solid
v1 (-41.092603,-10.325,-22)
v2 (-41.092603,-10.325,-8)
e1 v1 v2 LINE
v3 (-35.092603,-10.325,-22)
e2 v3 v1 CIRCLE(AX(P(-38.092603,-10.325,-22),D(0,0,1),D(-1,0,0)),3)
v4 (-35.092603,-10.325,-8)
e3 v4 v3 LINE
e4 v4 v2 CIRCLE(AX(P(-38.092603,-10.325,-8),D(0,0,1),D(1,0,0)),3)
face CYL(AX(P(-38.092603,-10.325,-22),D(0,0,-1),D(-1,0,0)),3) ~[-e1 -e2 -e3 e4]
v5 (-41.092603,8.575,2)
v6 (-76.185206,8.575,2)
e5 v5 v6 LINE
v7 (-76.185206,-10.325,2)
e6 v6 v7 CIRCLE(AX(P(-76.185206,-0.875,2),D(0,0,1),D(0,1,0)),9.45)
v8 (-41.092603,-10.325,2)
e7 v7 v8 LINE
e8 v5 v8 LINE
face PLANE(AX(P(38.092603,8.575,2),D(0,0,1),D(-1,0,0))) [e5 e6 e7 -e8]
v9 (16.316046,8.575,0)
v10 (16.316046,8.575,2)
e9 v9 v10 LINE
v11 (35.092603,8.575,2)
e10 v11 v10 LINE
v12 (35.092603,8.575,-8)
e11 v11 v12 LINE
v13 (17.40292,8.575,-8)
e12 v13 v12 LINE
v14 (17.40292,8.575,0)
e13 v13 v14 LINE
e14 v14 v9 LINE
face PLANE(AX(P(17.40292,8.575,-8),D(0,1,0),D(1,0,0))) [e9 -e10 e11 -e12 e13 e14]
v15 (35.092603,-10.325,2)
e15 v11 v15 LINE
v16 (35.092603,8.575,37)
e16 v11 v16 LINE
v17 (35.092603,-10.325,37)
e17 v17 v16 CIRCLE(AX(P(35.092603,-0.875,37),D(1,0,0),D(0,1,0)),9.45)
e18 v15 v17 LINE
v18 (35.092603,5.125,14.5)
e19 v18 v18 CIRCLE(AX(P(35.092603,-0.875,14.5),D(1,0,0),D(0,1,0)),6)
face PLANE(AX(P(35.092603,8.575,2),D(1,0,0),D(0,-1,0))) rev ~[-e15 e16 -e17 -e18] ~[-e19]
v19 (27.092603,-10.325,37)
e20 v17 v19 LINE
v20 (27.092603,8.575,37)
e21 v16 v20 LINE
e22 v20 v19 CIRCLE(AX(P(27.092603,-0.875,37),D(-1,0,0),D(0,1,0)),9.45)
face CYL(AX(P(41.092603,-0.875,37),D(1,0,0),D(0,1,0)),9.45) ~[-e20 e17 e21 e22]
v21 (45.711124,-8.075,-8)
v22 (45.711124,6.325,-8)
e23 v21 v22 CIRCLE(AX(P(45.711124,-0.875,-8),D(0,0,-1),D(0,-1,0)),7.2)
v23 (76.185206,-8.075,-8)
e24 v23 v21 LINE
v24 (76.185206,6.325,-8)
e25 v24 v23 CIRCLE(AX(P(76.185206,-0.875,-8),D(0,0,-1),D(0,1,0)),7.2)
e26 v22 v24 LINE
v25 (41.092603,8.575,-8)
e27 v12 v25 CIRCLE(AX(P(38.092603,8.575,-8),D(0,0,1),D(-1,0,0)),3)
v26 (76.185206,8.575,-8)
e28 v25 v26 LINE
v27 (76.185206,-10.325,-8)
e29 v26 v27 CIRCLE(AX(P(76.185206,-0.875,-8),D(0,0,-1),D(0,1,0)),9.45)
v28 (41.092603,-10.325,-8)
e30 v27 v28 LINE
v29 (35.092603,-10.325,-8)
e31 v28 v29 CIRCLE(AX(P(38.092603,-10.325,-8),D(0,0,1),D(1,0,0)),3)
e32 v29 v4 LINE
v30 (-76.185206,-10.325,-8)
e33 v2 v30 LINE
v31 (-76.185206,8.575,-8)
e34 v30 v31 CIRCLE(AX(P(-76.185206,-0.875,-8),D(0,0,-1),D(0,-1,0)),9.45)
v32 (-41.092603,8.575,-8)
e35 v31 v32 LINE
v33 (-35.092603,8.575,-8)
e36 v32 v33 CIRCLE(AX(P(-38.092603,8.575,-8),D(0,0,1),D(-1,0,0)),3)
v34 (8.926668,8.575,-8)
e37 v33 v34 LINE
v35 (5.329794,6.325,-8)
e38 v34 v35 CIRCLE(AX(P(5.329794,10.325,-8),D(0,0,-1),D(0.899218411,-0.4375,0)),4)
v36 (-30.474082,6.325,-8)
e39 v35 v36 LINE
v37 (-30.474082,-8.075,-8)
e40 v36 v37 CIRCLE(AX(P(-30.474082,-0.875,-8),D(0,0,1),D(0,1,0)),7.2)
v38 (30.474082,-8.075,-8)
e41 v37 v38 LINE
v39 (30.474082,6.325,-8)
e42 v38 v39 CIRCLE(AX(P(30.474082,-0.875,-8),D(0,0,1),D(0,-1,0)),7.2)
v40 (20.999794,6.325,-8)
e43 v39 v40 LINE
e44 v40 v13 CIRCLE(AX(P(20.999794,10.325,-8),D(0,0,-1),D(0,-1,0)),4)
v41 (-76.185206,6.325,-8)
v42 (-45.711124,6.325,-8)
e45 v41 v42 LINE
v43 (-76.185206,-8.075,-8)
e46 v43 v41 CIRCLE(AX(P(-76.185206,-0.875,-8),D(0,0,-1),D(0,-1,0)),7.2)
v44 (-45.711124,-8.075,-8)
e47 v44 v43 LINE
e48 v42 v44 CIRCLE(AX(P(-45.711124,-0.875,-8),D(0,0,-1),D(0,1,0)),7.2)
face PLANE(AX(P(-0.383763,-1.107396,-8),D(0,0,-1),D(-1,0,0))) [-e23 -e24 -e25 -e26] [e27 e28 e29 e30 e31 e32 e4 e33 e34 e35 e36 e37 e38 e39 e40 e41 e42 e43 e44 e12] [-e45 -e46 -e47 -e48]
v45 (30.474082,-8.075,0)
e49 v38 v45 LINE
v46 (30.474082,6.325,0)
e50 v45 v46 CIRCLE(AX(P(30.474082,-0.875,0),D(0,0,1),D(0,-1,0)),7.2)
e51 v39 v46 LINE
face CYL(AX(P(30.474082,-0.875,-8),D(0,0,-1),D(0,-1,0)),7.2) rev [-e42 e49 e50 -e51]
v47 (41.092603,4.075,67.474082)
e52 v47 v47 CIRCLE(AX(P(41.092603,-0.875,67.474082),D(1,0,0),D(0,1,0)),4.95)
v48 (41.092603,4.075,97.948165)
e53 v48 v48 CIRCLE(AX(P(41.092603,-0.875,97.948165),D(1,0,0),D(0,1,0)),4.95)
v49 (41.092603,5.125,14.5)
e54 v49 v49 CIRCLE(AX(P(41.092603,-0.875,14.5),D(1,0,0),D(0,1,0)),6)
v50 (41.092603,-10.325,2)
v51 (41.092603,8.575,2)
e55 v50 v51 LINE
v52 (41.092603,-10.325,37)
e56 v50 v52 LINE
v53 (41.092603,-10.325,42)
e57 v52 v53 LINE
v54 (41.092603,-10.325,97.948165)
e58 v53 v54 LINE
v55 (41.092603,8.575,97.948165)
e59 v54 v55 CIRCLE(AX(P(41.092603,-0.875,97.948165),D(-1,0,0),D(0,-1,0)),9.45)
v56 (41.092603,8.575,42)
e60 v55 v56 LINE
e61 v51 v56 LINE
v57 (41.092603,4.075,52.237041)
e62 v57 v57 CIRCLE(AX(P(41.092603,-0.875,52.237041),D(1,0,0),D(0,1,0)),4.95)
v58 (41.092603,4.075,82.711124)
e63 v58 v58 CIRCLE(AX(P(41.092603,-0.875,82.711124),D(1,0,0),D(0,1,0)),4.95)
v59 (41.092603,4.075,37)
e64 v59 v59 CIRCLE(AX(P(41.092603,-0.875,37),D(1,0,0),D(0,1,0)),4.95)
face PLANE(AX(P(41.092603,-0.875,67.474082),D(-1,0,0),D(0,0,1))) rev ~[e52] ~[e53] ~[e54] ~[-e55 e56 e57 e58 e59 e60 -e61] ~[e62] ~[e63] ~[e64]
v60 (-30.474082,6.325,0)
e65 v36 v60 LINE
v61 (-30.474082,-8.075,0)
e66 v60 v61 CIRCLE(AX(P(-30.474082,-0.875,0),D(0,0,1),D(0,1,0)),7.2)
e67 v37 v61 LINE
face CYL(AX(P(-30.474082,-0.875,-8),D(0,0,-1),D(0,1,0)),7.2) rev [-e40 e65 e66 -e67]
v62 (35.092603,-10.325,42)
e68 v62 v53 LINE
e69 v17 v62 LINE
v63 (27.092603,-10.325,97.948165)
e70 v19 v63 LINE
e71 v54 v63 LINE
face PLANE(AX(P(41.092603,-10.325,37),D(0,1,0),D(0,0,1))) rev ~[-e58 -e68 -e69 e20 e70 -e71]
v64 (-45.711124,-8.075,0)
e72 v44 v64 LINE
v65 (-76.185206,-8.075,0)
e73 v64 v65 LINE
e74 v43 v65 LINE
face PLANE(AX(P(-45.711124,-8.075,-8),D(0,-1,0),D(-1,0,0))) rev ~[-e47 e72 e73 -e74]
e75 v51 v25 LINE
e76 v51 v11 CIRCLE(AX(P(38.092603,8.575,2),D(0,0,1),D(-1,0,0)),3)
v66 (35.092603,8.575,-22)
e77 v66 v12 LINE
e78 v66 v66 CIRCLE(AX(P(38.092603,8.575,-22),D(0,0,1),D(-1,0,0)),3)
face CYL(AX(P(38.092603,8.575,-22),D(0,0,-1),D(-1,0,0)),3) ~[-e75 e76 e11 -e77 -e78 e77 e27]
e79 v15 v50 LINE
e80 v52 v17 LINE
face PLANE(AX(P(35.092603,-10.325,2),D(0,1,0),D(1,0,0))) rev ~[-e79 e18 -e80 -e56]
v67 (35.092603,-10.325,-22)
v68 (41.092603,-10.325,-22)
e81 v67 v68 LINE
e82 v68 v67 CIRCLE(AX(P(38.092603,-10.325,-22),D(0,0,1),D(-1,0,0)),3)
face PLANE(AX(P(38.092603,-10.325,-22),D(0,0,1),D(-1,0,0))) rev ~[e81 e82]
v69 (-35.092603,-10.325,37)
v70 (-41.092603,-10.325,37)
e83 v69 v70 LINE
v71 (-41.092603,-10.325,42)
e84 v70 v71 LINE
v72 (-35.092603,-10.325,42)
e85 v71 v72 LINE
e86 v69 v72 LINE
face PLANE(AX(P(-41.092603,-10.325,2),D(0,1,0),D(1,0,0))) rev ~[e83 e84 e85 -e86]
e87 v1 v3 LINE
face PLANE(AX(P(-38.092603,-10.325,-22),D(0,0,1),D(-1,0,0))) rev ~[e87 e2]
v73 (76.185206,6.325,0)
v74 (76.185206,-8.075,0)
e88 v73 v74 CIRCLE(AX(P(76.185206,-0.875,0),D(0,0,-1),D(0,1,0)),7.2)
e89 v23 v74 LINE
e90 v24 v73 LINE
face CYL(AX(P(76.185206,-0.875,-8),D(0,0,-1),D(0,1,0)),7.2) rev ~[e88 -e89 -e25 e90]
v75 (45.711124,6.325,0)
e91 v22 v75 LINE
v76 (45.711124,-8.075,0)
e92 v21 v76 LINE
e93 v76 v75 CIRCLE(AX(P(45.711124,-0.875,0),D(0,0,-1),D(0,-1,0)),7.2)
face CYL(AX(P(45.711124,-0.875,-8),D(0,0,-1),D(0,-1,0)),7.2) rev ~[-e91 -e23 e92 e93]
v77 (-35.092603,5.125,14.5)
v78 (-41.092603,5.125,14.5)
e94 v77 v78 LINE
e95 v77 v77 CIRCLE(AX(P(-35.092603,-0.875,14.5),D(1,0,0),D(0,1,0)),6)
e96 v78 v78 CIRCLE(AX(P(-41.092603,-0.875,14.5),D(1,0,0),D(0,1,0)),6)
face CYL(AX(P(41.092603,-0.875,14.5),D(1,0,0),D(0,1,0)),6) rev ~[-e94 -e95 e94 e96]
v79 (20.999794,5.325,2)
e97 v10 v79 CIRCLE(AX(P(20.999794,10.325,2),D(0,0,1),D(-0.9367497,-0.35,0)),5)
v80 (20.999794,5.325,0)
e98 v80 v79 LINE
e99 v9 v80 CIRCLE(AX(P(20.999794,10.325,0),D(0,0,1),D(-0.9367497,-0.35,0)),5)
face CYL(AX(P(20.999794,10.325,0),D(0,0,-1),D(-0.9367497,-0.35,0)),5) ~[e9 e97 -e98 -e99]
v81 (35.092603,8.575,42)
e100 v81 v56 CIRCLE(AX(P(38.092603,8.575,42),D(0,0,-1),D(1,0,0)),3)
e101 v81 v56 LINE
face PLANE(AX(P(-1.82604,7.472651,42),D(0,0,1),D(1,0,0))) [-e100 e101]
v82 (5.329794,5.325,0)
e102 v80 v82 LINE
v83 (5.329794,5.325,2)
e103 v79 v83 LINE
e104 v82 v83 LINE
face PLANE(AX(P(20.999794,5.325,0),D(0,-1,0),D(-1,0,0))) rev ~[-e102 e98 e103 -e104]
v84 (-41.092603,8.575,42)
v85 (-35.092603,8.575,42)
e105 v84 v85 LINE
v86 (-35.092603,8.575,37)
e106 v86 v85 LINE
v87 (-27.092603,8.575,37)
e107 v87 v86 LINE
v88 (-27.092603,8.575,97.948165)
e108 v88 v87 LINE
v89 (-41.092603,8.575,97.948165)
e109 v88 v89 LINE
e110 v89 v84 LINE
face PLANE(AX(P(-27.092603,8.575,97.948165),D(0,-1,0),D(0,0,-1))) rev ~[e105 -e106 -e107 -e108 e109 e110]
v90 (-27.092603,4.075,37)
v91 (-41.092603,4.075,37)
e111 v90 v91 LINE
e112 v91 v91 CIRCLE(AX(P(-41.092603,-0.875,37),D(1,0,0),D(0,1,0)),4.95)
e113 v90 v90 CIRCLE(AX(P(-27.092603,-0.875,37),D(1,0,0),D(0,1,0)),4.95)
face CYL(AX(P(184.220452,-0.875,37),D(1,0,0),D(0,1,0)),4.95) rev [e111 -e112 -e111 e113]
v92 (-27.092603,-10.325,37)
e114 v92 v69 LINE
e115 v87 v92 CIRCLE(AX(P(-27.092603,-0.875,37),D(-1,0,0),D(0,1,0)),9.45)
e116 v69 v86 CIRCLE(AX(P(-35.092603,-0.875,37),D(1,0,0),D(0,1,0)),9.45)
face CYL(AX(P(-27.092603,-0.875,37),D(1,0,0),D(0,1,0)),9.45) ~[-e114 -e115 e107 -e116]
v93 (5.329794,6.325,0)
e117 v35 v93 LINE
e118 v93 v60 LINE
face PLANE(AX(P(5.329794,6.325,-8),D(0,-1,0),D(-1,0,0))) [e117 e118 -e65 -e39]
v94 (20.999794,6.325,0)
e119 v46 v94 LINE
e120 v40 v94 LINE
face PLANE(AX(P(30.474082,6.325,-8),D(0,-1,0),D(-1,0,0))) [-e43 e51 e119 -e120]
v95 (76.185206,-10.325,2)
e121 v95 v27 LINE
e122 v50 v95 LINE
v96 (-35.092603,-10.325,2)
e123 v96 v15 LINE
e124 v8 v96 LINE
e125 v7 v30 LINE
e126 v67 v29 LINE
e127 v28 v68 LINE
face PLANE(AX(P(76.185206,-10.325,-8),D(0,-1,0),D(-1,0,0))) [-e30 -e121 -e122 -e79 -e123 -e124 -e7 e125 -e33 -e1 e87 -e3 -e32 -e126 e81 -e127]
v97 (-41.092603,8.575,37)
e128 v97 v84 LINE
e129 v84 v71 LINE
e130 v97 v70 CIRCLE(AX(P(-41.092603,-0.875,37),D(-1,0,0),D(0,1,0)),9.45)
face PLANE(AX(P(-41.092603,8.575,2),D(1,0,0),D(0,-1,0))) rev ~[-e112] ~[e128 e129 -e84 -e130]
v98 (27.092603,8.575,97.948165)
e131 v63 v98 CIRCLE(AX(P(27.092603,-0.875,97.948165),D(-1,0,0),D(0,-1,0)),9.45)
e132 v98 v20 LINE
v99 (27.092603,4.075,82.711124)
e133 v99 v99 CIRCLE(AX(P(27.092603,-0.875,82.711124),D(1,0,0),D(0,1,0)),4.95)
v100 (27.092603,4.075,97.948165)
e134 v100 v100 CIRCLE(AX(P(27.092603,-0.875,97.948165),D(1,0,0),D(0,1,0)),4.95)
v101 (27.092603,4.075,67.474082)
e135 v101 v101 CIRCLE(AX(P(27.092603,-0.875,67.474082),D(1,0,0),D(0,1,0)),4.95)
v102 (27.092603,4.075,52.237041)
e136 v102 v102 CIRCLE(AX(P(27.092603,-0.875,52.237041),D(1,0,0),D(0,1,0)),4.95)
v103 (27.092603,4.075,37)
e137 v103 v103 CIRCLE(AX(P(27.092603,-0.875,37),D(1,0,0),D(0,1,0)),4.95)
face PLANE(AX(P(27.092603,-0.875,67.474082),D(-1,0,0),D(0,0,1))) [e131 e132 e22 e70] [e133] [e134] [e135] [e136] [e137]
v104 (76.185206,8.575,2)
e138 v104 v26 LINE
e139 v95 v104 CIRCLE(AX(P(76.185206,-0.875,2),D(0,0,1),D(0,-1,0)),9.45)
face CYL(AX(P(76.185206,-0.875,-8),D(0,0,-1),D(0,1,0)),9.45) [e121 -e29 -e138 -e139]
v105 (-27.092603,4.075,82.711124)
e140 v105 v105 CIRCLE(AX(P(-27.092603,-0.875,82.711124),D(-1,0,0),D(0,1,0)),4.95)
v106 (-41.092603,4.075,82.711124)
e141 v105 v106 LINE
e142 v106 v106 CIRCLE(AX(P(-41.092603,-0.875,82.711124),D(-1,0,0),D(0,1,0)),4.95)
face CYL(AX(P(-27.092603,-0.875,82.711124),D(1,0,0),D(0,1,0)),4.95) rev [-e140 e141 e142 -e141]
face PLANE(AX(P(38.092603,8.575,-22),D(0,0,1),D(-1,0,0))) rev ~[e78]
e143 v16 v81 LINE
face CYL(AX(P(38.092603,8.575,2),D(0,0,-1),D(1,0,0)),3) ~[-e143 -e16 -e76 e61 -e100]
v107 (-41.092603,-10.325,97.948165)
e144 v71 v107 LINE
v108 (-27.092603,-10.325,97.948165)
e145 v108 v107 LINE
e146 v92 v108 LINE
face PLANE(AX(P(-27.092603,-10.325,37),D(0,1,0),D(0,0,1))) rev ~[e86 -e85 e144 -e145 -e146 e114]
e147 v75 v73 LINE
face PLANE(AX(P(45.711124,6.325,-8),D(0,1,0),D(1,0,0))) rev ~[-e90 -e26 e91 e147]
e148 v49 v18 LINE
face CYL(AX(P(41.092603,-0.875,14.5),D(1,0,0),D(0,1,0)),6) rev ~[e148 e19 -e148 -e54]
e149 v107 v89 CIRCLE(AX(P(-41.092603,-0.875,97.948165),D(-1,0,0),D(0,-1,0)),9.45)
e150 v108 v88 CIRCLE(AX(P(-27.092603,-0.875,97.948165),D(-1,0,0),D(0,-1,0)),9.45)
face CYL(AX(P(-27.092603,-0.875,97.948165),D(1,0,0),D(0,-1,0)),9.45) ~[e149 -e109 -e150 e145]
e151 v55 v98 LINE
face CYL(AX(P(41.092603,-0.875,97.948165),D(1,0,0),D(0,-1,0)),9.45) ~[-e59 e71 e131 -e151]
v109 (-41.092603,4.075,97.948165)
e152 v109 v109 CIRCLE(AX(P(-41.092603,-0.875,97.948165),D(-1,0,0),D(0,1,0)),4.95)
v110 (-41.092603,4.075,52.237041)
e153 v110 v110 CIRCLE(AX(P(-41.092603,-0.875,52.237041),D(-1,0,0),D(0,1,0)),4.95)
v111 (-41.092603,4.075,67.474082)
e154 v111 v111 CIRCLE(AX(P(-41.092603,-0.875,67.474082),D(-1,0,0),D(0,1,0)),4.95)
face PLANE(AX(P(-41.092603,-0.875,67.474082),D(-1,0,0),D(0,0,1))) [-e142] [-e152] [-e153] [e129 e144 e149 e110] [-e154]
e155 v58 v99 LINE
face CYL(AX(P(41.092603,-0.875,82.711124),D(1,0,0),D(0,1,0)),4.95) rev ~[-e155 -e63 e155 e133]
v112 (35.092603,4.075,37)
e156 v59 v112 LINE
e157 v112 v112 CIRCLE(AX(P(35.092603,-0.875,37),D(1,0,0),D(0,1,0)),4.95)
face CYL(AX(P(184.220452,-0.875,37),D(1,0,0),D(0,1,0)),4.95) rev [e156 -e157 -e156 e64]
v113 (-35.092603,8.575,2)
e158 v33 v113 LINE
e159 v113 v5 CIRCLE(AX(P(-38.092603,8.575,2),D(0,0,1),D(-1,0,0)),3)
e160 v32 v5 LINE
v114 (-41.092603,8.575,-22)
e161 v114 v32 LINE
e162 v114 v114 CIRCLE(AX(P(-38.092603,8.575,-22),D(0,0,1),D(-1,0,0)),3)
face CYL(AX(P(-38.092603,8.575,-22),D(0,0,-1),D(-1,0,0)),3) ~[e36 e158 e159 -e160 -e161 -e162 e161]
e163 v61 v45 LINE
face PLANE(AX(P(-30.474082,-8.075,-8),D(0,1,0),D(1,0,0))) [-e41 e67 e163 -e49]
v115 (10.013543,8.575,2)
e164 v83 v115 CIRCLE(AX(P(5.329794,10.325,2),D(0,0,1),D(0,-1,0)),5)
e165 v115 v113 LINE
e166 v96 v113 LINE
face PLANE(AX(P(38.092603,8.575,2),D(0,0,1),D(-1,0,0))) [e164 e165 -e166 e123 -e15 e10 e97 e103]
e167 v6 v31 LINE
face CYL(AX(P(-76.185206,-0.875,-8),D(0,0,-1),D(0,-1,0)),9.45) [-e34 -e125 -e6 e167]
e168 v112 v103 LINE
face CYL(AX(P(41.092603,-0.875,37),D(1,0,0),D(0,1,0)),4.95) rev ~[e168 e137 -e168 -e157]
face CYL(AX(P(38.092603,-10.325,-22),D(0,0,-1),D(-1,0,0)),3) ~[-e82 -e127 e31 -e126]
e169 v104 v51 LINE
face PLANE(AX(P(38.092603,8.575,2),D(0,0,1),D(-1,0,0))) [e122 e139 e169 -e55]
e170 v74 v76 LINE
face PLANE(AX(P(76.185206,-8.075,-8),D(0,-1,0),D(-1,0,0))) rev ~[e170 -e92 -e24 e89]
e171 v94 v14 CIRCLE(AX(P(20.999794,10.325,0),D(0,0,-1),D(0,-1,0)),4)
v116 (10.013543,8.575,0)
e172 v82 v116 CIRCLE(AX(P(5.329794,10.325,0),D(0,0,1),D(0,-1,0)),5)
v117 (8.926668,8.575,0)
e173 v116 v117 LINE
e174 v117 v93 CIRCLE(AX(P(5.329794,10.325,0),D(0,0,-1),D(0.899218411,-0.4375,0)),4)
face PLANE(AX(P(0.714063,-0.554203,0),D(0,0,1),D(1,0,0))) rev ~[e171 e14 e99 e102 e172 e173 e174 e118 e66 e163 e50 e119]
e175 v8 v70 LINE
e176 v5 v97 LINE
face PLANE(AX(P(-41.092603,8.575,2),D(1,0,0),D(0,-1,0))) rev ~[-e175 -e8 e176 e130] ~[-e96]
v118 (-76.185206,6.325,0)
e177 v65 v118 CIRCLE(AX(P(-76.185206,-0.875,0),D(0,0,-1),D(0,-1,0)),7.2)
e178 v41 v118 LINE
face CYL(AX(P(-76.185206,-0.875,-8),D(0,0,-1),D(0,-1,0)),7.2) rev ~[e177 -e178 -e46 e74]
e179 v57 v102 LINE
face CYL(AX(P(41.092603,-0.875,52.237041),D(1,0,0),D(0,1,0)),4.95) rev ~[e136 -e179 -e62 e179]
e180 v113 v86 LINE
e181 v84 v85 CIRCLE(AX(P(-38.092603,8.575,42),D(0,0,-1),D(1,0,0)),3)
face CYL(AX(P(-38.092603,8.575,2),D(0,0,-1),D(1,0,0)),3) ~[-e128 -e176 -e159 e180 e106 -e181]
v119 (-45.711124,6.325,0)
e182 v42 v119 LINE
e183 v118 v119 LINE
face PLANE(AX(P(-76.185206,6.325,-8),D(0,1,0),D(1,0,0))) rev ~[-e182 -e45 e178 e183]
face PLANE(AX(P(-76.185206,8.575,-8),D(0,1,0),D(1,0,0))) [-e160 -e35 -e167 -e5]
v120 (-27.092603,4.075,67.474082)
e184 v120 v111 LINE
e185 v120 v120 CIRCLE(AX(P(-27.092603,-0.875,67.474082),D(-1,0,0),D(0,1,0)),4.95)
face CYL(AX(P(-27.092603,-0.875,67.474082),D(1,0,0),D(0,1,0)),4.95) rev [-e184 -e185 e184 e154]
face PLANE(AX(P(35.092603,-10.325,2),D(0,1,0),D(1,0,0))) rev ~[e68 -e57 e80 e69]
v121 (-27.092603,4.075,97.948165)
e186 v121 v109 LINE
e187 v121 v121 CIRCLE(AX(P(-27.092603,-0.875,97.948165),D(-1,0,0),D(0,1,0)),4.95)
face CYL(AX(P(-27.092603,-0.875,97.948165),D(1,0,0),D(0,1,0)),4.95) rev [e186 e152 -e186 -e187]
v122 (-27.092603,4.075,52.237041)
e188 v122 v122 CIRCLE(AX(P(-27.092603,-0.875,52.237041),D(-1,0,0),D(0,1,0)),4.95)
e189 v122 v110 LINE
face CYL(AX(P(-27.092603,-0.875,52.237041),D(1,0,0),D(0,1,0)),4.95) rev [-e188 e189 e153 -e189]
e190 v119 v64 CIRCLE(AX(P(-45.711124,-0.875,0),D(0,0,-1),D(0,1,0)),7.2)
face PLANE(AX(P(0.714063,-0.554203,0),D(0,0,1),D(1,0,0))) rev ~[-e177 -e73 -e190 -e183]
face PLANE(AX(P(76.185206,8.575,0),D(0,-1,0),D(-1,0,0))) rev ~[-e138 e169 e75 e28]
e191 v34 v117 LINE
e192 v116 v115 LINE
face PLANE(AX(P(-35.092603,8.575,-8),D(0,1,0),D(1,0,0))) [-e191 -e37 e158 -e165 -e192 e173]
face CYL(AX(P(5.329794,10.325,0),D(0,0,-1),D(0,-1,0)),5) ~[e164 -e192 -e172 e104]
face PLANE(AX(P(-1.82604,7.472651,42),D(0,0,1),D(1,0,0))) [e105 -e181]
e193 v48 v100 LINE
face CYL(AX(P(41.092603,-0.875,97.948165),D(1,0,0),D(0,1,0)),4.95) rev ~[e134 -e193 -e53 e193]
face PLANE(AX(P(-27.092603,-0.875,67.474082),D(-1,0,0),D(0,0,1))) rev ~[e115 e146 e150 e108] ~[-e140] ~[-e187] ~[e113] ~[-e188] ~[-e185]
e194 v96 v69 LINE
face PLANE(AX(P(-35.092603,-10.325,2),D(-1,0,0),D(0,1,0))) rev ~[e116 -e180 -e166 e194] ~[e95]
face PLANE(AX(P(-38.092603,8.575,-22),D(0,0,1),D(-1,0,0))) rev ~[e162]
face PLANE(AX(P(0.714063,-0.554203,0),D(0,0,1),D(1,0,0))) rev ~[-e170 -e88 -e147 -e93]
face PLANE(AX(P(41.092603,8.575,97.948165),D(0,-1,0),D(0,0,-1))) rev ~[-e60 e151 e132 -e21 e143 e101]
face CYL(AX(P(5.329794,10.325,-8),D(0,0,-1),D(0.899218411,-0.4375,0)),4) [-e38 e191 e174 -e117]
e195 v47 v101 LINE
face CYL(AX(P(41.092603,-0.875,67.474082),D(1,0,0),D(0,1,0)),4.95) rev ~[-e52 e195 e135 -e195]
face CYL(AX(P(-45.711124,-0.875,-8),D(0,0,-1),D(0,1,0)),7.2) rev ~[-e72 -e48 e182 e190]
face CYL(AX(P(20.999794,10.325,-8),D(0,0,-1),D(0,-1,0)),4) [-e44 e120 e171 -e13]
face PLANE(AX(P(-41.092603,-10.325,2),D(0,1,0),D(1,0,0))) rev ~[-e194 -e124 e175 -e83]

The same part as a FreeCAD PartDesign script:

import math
import FreeCAD as App
import Part
import Sketcher

V = App.Vector

doc = App.newDocument("Part")
body = doc.addObject("PartDesign::Body", "Body")

# Sketch on XY plane
sketch1 = body.newObject("Sketcher::SketchObject", "Sketch")
sketch1.AttachmentSupport = (doc.getObject("XY_Plane"), [""])
sketch1.MapMode = "FlatFace"
sketch1.addGeometry(Part.LineSegment(V(21, 5.3, 0), V(5.3, 5.3, 0)), False)
sketch1.addGeometry(Part.ArcOfCircle(Part.Circle(V(5.3, 10.3, 0), V(0, 0, 1), 5), math.radians(-90), math.radians(-20)), False)
sketch1.addGeometry(Part.LineSegment(V(10, 8.6, 0), V(-35.1, 8.6, 0)), False)
sketch1.addGeometry(Part.ArcOfCircle(Part.Circle(V(-38.1, 8.6, 0), V(0, 0, 1), 3), math.radians(180), math.radians(360)), False)
sketch1.addGeometry(Part.LineSegment(V(-41.1, 8.6, 0), V(-76.2, 8.6, 0)), False)
sketch1.addGeometry(Part.ArcOfCircle(Part.Circle(V(-76.2, -0.9, 0), V(0, 0, 1), 9.4), math.radians(90), math.radians(270)), False)
sketch1.addGeometry(Part.LineSegment(V(-76.2, -10.3, 0), V(-41.1, -10.3, 0)), False)
sketch1.addGeometry(Part.ArcOfCircle(Part.Circle(V(-38.1, -10.3, 0), V(0, 0, 1), 3), math.radians(0), math.radians(180)), False)
sketch1.addGeometry(Part.LineSegment(V(-35.1, -10.3, 0), V(35.1, -10.3, 0)), False)
sketch1.addGeometry(Part.ArcOfCircle(Part.Circle(V(38.1, -10.3, 0), V(0, 0, 1), 3), math.radians(0), math.radians(180)), False)
sketch1.addGeometry(Part.LineSegment(V(41.1, -10.3, 0), V(76.2, -10.3, 0)), False)
sketch1.addGeometry(Part.ArcOfCircle(Part.Circle(V(76.2, -0.9, 0), V(0, 0, 1), 9.4), math.radians(-90), math.radians(90)), False)
sketch1.addGeometry(Part.LineSegment(V(76.2, 8.6, 0), V(41.1, 8.6, 0)), False)
sketch1.addGeometry(Part.ArcOfCircle(Part.Circle(V(38.1, 8.6, 0), V(0, 0, 1), 3), math.radians(180), math.radians(360)), False)
sketch1.addGeometry(Part.LineSegment(V(35.1, 8.6, 0), V(16.3, 8.6, 0)), False)
sketch1.addGeometry(Part.ArcOfCircle(Part.Circle(V(21, 10.3, 0), V(0, 0, 1), 5), math.radians(-160), math.radians(-90)), False)
sketch1.addConstraint(Sketcher.Constraint("Tangent", 0, 2, 1, 1))
sketch1.addConstraint(Sketcher.Constraint("Coincident", 1, 2, 2, 1))
sketch1.addConstraint(Sketcher.Constraint("Coincident", 2, 2, 3, 2))
sketch1.addConstraint(Sketcher.Constraint("Coincident", 3, 1, 4, 1))
sketch1.addConstraint(Sketcher.Constraint("Tangent", 4, 2, 5, 1))
sketch1.addConstraint(Sketcher.Constraint("Tangent", 5, 2, 6, 1))
sketch1.addConstraint(Sketcher.Constraint("Coincident", 6, 2, 7, 2))
sketch1.addConstraint(Sketcher.Constraint("Coincident", 7, 1, 8, 1))
sketch1.addConstraint(Sketcher.Constraint("Coincident", 8, 2, 9, 2))
sketch1.addConstraint(Sketcher.Constraint("Coincident", 9, 1, 10, 1))
sketch1.addConstraint(Sketcher.Constraint("Tangent", 10, 2, 11, 1))
sketch1.addConstraint(Sketcher.Constraint("Tangent", 11, 2, 12, 1))
sketch1.addConstraint(Sketcher.Constraint("Coincident", 12, 2, 13, 2))
sketch1.addConstraint(Sketcher.Constraint("Coincident", 13, 1, 14, 1))
sketch1.addConstraint(Sketcher.Constraint("Coincident", 14, 2, 15, 1))
sketch1.addConstraint(Sketcher.Constraint("Tangent", 15, 2, 0, 1))
sketch1.addConstraint(Sketcher.Constraint("Horizontal", 0))
sketch1.addConstraint(Sketcher.Constraint("Horizontal", 2))
sketch1.addConstraint(Sketcher.Constraint("Horizontal", 4))
sketch1.addConstraint(Sketcher.Constraint("Horizontal", 6))
sketch1.addConstraint(Sketcher.Constraint("Horizontal", 8))
sketch1.addConstraint(Sketcher.Constraint("Horizontal", 10))
sketch1.addConstraint(Sketcher.Constraint("Horizontal", 12))
sketch1.addConstraint(Sketcher.Constraint("Horizontal", 14))
sketch1.addConstraint(Sketcher.Constraint("Equal", 3, 7))
sketch1.addConstraint(Sketcher.Constraint("Equal", 7, 9))
sketch1.addConstraint(Sketcher.Constraint("Equal", 5, 11))
sketch1.addConstraint(Sketcher.Constraint("Equal", 9, 13))
sketch1.addConstraint(Sketcher.Constraint("Equal", 1, 15))
sketch1.addConstraint(Sketcher.Constraint("Symmetric", 7, 3, 9, 3, -2))
sketch1.addConstraint(Sketcher.Constraint("Symmetric", 5, 3, 11, 3, -2))
sketch1.addConstraint(Sketcher.Constraint("Symmetric", 3, 3, 13, 3, -2))
sketch1.addConstraint(Sketcher.Constraint("Horizontal", 13, 3, 1, 2))
sketch1.addConstraint(Sketcher.Constraint("Horizontal", 2, 2, 3, 1))
sketch1.addConstraint(Sketcher.Constraint("Horizontal", 9, 3, 5, 2))
sketch1.addConstraint(Sketcher.Constraint("Horizontal", 6, 2, 7, 1))
sketch1.addConstraint(Sketcher.Constraint("Horizontal", 12, 2, 13, 1))
sketch1.addConstraint(Sketcher.Constraint("Vertical", 3, 3, 7, 3))
sketch1.addConstraint(Sketcher.Constraint("Radius", 1, 5.0))
sketch1.addConstraint(Sketcher.Constraint("Radius", 3, 3.0))
sketch1.addConstraint(Sketcher.Constraint("Radius", 5, 9.45))
sketch1.addConstraint(Sketcher.Constraint("DistanceX", 0, 2, 0, 1, 15.67))
sketch1.addConstraint(Sketcher.Constraint("DistanceY", 5, 3, 1, 3, 11.2))
sketch1.addConstraint(Sketcher.Constraint("DistanceY", -1, 1, 1, 3, 10.325))
sketch1.addConstraint(Sketcher.Constraint("DistanceX", 5, 3, 1, 3, 81.515))
sketch1.addConstraint(Sketcher.Constraint("DistanceX", 2, 2, 2, 1, 45.106146))
sketch1.addConstraint(Sketcher.Constraint("DistanceX", 8, 1, 8, 2, 70.185206))
pad1 = body.newObject("PartDesign::Pad", "Pad")
pad1.Profile = sketch1
pad1.Length = 2

# Sketch on XY plane
sketch2 = body.newObject("Sketcher::SketchObject", "Sketch001")
sketch2.AttachmentSupport = (doc.getObject("XY_Plane"), [""])
sketch2.MapMode = "FlatFace"
sketch2.AttachmentOffset = App.Placement(V(0, 0, -22), App.Rotation())
sketch2.addGeometry(Part.Circle(V(38.1, 8.6, 0), V(0, 0, 1), 3), False)
sketch2.addGeometry(Part.Circle(V(38.1, -10.3, 0), V(0, 0, 1), 3), False)
sketch2.addGeometry(Part.Circle(V(-38.1, -10.3, 0), V(0, 0, 1), 3), False)
sketch2.addGeometry(Part.Circle(V(-38.1, 8.6, 0), V(0, 0, 1), 3), False)
sketch2.addConstraint(Sketcher.Constraint("Equal", 0, 1))
sketch2.addConstraint(Sketcher.Constraint("Equal", 1, 2))
sketch2.addConstraint(Sketcher.Constraint("Equal", 2, 3))
sketch2.addConstraint(Sketcher.Constraint("Symmetric", 1, 3, 2, 3, -2))
sketch2.addConstraint(Sketcher.Constraint("Symmetric", 0, 3, 3, 3, -2))
sketch2.addConstraint(Sketcher.Constraint("Vertical", 0, 3, 1, 3))
sketch2.addConstraint(Sketcher.Constraint("Diameter", 0, 6.0))
sketch2.addConstraint(Sketcher.Constraint("DistanceY", 1, 3, 0, 3, 18.9))
sketch2.addConstraint(Sketcher.Constraint("DistanceY", -1, 1, 0, 3, 8.575))
sketch2.addConstraint(Sketcher.Constraint("DistanceX", -1, 1, 0, 3, 38.092603))
pad2 = body.newObject("PartDesign::Pad", "Pad001")
pad2.Profile = sketch2
pad2.Length = 24

# Sketch on XY plane
sketch3 = body.newObject("Sketcher::SketchObject", "Sketch002")
sketch3.AttachmentSupport = (doc.getObject("XY_Plane"), [""])
sketch3.MapMode = "FlatFace"
sketch3.AttachmentOffset = App.Placement(V(0, 0, -8), App.Rotation())
sketch3.addGeometry(Part.LineSegment(V(17.4, 8.6, 0), V(35.1, 8.6, 0)), False)
sketch3.addGeometry(Part.ArcOfCircle(Part.Circle(V(38.1, 8.6, 0), V(0, 0, 1), 3), math.radians(180), math.radians(360)), False)
sketch3.addGeometry(Part.LineSegment(V(41.1, 8.6, 0), V(76.2, 8.6, 0)), False)
sketch3.addGeometry(Part.ArcOfCircle(Part.Circle(V(76.2, -0.9, 0), V(0, 0, 1), 9.4), math.radians(-90), math.radians(90)), False)
sketch3.addGeometry(Part.LineSegment(V(76.2, -10.3, 0), V(41.1, -10.3, 0)), False)
sketch3.addGeometry(Part.ArcOfCircle(Part.Circle(V(38.1, -10.3, 0), V(0, 0, 1), 3), math.radians(0), math.radians(180)), False)
sketch3.addGeometry(Part.LineSegment(V(35.1, -10.3, 0), V(-35.1, -10.3, 0)), False)
sketch3.addGeometry(Part.ArcOfCircle(Part.Circle(V(-38.1, -10.3, 0), V(0, 0, 1), 3), math.radians(0), math.radians(180)), False)
sketch3.addGeometry(Part.LineSegment(V(-41.1, -10.3, 0), V(-76.2, -10.3, 0)), False)
sketch3.addGeometry(Part.ArcOfCircle(Part.Circle(V(-76.2, -0.9, 0), V(0, 0, 1), 9.4), math.radians(90), math.radians(270)), False)
sketch3.addGeometry(Part.LineSegment(V(-76.2, 8.6, 0), V(-41.1, 8.6, 0)), False)
sketch3.addGeometry(Part.ArcOfCircle(Part.Circle(V(-38.1, 8.6, 0), V(0, 0, 1), 3), math.radians(180), math.radians(360)), False)
sketch3.addGeometry(Part.LineSegment(V(-35.1, 8.6, 0), V(8.9, 8.6, 0)), False)
sketch3.addGeometry(Part.ArcOfCircle(Part.Circle(V(5.3, 10.3, 0), V(0, 0, 1), 4), math.radians(-90), math.radians(-26)), False)
sketch3.addGeometry(Part.LineSegment(V(5.3, 6.3, 0), V(-30.5, 6.3, 0)), False)
sketch3.addGeometry(Part.ArcOfCircle(Part.Circle(V(-30.5, -0.9, 0), V(0, 0, 1), 7.2), math.radians(90), math.radians(270)), False)
sketch3.addGeometry(Part.LineSegment(V(-30.5, -8.1, 0), V(30.5, -8.1, 0)), False)
sketch3.addGeometry(Part.ArcOfCircle(Part.Circle(V(30.5, -0.9, 0), V(0, 0, 1), 7.2), math.radians(-90), math.radians(90)), False)
sketch3.addGeometry(Part.LineSegment(V(30.5, 6.3, 0), V(21, 6.3, 0)), False)
sketch3.addGeometry(Part.ArcOfCircle(Part.Circle(V(21, 10.3, 0), V(0, 0, 1), 4), math.radians(-154), math.radians(-90)), False)
sketch3.addGeometry(Part.LineSegment(V(76.2, 6.3, 0), V(45.7, 6.3, 0)), False)
sketch3.addGeometry(Part.ArcOfCircle(Part.Circle(V(45.7, -0.9, 0), V(0, 0, 1), 7.2), math.radians(90), math.radians(270)), False)
sketch3.addGeometry(Part.LineSegment(V(45.7, -8.1, 0), V(76.2, -8.1, 0)), False)
sketch3.addGeometry(Part.ArcOfCircle(Part.Circle(V(76.2, -0.9, 0), V(0, 0, 1), 7.2), math.radians(-90), math.radians(90)), False)
sketch3.addGeometry(Part.LineSegment(V(-45.7, 6.3, 0), V(-76.2, 6.3, 0)), False)
sketch3.addGeometry(Part.ArcOfCircle(Part.Circle(V(-76.2, -0.9, 0), V(0, 0, 1), 7.2), math.radians(90), math.radians(270)), False)
sketch3.addGeometry(Part.LineSegment(V(-76.2, -8.1, 0), V(-45.7, -8.1, 0)), False)
sketch3.addGeometry(Part.ArcOfCircle(Part.Circle(V(-45.7, -0.9, 0), V(0, 0, 1), 7.2), math.radians(-90), math.radians(90)), False)
sketch3.addConstraint(Sketcher.Constraint("Coincident", 0, 2, 1, 1))
sketch3.addConstraint(Sketcher.Constraint("Coincident", 1, 2, 2, 1))
sketch3.addConstraint(Sketcher.Constraint("Tangent", 2, 2, 3, 2))
sketch3.addConstraint(Sketcher.Constraint("Tangent", 3, 1, 4, 1))
sketch3.addConstraint(Sketcher.Constraint("Coincident", 4, 2, 5, 1))
sketch3.addConstraint(Sketcher.Constraint("Coincident", 5, 2, 6, 1))
sketch3.addConstraint(Sketcher.Constraint("Coincident", 6, 2, 7, 1))
sketch3.addConstraint(Sketcher.Constraint("Coincident", 7, 2, 8, 1))
sketch3.addConstraint(Sketcher.Constraint("Tangent", 8, 2, 9, 2))
sketch3.addConstraint(Sketcher.Constraint("Tangent", 9, 1, 10, 1))
sketch3.addConstraint(Sketcher.Constraint("Coincident", 10, 2, 11, 1))
sketch3.addConstraint(Sketcher.Constraint("Coincident", 11, 2, 12, 1))
sketch3.addConstraint(Sketcher.Constraint("Coincident", 12, 2, 13, 2))
sketch3.addConstraint(Sketcher.Constraint("Tangent", 13, 1, 14, 1))
sketch3.addConstraint(Sketcher.Constraint("Tangent", 14, 2, 15, 1))
sketch3.addConstraint(Sketcher.Constraint("Tangent", 15, 2, 16, 1))
sketch3.addConstraint(Sketcher.Constraint("Tangent", 16, 2, 17, 1))
sketch3.addConstraint(Sketcher.Constraint("Tangent", 17, 2, 18, 1))
sketch3.addConstraint(Sketcher.Constraint("Tangent", 18, 2, 19, 2))
sketch3.addConstraint(Sketcher.Constraint("Coincident", 19, 1, 0, 1))
sketch3.addConstraint(Sketcher.Constraint("Tangent", 20, 2, 21, 1))
sketch3.addConstraint(Sketcher.Constraint("Tangent", 21, 2, 22, 1))
sketch3.addConstraint(Sketcher.Constraint("Tangent", 22, 2, 23, 1))
sketch3.addConstraint(Sketcher.Constraint("Tangent", 23, 2, 20, 1))
sketch3.addConstraint(Sketcher.Constraint("Tangent", 24, 2, 25, 1))
sketch3.addConstraint(Sketcher.Constraint("Tangent", 25, 2, 26, 1))
sketch3.addConstraint(Sketcher.Constraint("Tangent", 26, 2, 27, 1))
sketch3.addConstraint(Sketcher.Constraint("Tangent", 27, 2, 24, 1))
sketch3.addConstraint(Sketcher.Constraint("Horizontal", 0))
sketch3.addConstraint(Sketcher.Constraint("Horizontal", 2))
sketch3.addConstraint(Sketcher.Constraint("Horizontal", 4))
sketch3.addConstraint(Sketcher.Constraint("Horizontal", 6))
sketch3.addConstraint(Sketcher.Constraint("Horizontal", 8))
sketch3.addConstraint(Sketcher.Constraint("Horizontal", 10))
sketch3.addConstraint(Sketcher.Constraint("Horizontal", 12))
sketch3.addConstraint(Sketcher.Constraint("Horizontal", 14))
sketch3.addConstraint(Sketcher.Constraint("Horizontal", 16))
sketch3.addConstraint(Sketcher.Constraint("Horizontal", 18))
sketch3.addConstraint(Sketcher.Constraint("Horizontal", 20))
sketch3.addConstraint(Sketcher.Constraint("Horizontal", 22))
sketch3.addConstraint(Sketcher.Constraint("Horizontal", 24))
sketch3.addConstraint(Sketcher.Constraint("Horizontal", 26))
sketch3.addConstraint(Sketcher.Constraint("Coincident", 23, 3, 3, 3))
sketch3.addConstraint(Sketcher.Constraint("Coincident", 25, 3, 9, 3))
sketch3.addConstraint(Sketcher.Constraint("Equal", 1, 5))
sketch3.addConstraint(Sketcher.Constraint("Equal", 5, 7))
sketch3.addConstraint(Sketcher.Constraint("Equal", 3, 9))
sketch3.addConstraint(Sketcher.Constraint("Equal", 7, 11))
sketch3.addConstraint(Sketcher.Constraint("Equal", 15, 17))
sketch3.addConstraint(Sketcher.Constraint("Equal", 13, 19))
sketch3.addConstraint(Sketcher.Constraint("Equal", 17, 21))
sketch3.addConstraint(Sketcher.Constraint("Equal", 23, 25))
sketch3.addConstraint(Sketcher.Constraint("Symmetric", 5, 3, 7, 3, -2))
sketch3.addConstraint(Sketcher.Constraint("Symmetric", 3, 3, 9, 3, -2))
sketch3.addConstraint(Sketcher.Constraint("Symmetric", 1, 3, 11, 3, -2))
sketch3.addConstraint(Sketcher.Constraint("Horizontal", 9, 3, 15, 3))
sketch3.addConstraint(Sketcher.Constraint("Horizontal", 11, 3, 0, 2))
sketch3.addConstraint(Sketcher.Constraint("Horizontal", 0, 2, 1, 2))
sketch3.addConstraint(Sketcher.Constraint("Horizontal", 7, 3, 3, 1))
sketch3.addConstraint(Sketcher.Constraint("Horizontal", 4, 2, 5, 2))
sketch3.addConstraint(Sketcher.Constraint("Horizontal", 10, 2, 11, 2))
sketch3.addConstraint(Sketcher.Constraint("Vertical", 1, 3, 5, 3))
sketch3.addConstraint(Sketcher.Constraint("Equal", 22, 24))
sketch3.addConstraint(Sketcher.Constraint("Radius", 1, 3.0))
sketch3.addConstraint(Sketcher.Constraint("Radius", 13, 4.0))
sketch3.addConstraint(Sketcher.Constraint("Radius", 15, 7.2))
sketch3.addConstraint(Sketcher.Constraint("Radius", 3, 9.45))
sketch3.addConstraint(Sketcher.Constraint("DistanceX", 13, 3, 19, 3, 15.67))
sketch3.addConstraint(Sketcher.Constraint("DistanceY", -1, 1, 1, 3, 8.575))
sketch3.addConstraint(Sketcher.Constraint("DistanceX", 25, 3, 13, 3, 81.515))
sketch3.addConstraint(Sketcher.Constraint("DistanceX", 12, 1, 12, 2, 44.019271))
sketch3.addConstraint(Sketcher.Constraint("DistanceX", 18, 2, 18, 1, 9.474288))
sketch3.addConstraint(Sketcher.Constraint("DistanceX", 0, 1, 0, 2, 17.689683))
sketch3.addConstraint(Sketcher.Constraint("DistanceX", 14, 2, 14, 1, 35.803876))
sketch3.addConstraint(Sketcher.Constraint("DistanceX", 20, 2, 20, 1, 30.474082))
pad3 = body.newObject("PartDesign::Pad", "Pad002")
pad3.Profile = sketch3
pad3.Length = 8

# Sketch on XY plane
sketch4 = body.newObject("Sketcher::SketchObject", "Sketch003")
sketch4.AttachmentSupport = (doc.getObject("XY_Plane"), [""])
sketch4.MapMode = "FlatFace"
sketch4.AttachmentOffset = App.Placement(V(0, 0, 2), App.Rotation())
sketch4.addGeometry(Part.LineSegment(V(-55, -10, 0), V(-55, -33, 0)), False)
sketch4.addGeometry(Part.LineSegment(V(-55, -33, 0), V(88, -33, 0)), False)
sketch4.addGeometry(Part.LineSegment(V(88, -33, 0), V(88, -10, 0)), False)
sketch4.addGeometry(Part.LineSegment(V(88, -10, 0), V(-55, -10, 0)), False)
sketch4.addConstraint(Sketcher.Constraint("Coincident", 0, 2, 1, 1))
sketch4.addConstraint(Sketcher.Constraint("Coincident", 1, 2, 2, 1))
sketch4.addConstraint(Sketcher.Constraint("Coincident", 2, 2, 3, 1))
sketch4.addConstraint(Sketcher.Constraint("Coincident", 3, 2, 0, 1))
sketch4.addConstraint(Sketcher.Constraint("Vertical", 0))
sketch4.addConstraint(Sketcher.Constraint("Horizontal", 1))
sketch4.addConstraint(Sketcher.Constraint("Vertical", 2))
sketch4.addConstraint(Sketcher.Constraint("Horizontal", 3))
sketch4.addConstraint(Sketcher.Constraint("DistanceY", 2, 2, -1, 1, 10.325))
sketch4.addConstraint(Sketcher.Constraint("DistanceX", 1, 1, 1, 2, 143.526768))
sketch4.addConstraint(Sketcher.Constraint("DistanceY", 0, 2, 0, 1, 22.779611))
sketch4.addConstraint(Sketcher.Constraint("DistanceX", 0, 2, -1, 1, 55.420323))
pocket1 = body.newObject("PartDesign::Pocket", "Pocket")
pocket1.Profile = sketch4
pocket1.Type = "ThroughAll"

# Sketch on XY plane
sketch5 = body.newObject("Sketcher::SketchObject", "Sketch004")
sketch5.AttachmentSupport = (doc.getObject("XY_Plane"), [""])
sketch5.MapMode = "FlatFace"
sketch5.AttachmentOffset = App.Placement(V(0, 0, 2), App.Rotation())
sketch5.addGeometry(Part.ArcOfCircle(Part.Circle(V(-38.1, 8.6, 0), V(0, 0, 1), 3), math.radians(0), math.radians(180)), False)
sketch5.addGeometry(Part.LineSegment(V(-41.1, 8.6, 0), V(-41.1, -10.3, 0)), False)
sketch5.addGeometry(Part.LineSegment(V(-41.1, -10.3, 0), V(-35.1, -10.3, 0)), False)
sketch5.addGeometry(Part.LineSegment(V(-35.1, -10.3, 0), V(-35.1, 8.6, 0)), False)
sketch5.addGeometry(Part.LineSegment(V(35.1, 8.6, 0), V(35.1, -10.3, 0)), False)
sketch5.addGeometry(Part.LineSegment(V(35.1, -10.3, 0), V(41.1, -10.3, 0)), False)
sketch5.addGeometry(Part.LineSegment(V(41.1, -10.3, 0), V(41.1, 8.6, 0)), False)
sketch5.addGeometry(Part.ArcOfCircle(Part.Circle(V(38.1, 8.6, 0), V(0, 0, 1), 3), math.radians(0), math.radians(180)), False)
sketch5.addConstraint(Sketcher.Constraint("Tangent", 0, 2, 1, 1))
sketch5.addConstraint(Sketcher.Constraint("Coincident", 1, 2, 2, 1))
sketch5.addConstraint(Sketcher.Constraint("Coincident", 2, 2, 3, 1))
sketch5.addConstraint(Sketcher.Constraint("Tangent", 3, 2, 0, 1))
sketch5.addConstraint(Sketcher.Constraint("Coincident", 4, 2, 5, 1))
sketch5.addConstraint(Sketcher.Constraint("Coincident", 5, 2, 6, 1))
sketch5.addConstraint(Sketcher.Constraint("Tangent", 6, 2, 7, 1))
sketch5.addConstraint(Sketcher.Constraint("Tangent", 7, 2, 4, 1))
sketch5.addConstraint(Sketcher.Constraint("Vertical", 1))
sketch5.addConstraint(Sketcher.Constraint("Horizontal", 2))
sketch5.addConstraint(Sketcher.Constraint("Vertical", 3))
sketch5.addConstraint(Sketcher.Constraint("Vertical", 4))
sketch5.addConstraint(Sketcher.Constraint("Horizontal", 5))
sketch5.addConstraint(Sketcher.Constraint("Vertical", 6))
sketch5.addConstraint(Sketcher.Constraint("Equal", 0, 7))
sketch5.addConstraint(Sketcher.Constraint("Symmetric", 0, 3, 7, 3, -2))
sketch5.addConstraint(Sketcher.Constraint("Horizontal", 2, 2, 4, 2))
sketch5.addConstraint(Sketcher.Constraint("Radius", 0, 3.0))
sketch5.addConstraint(Sketcher.Constraint("DistanceY", 1, 2, 1, 1, 18.9))
sketch5.addConstraint(Sketcher.Constraint("DistanceY", -1, 1, 0, 3, 8.575))
sketch5.addConstraint(Sketcher.Constraint("DistanceX", 0, 3, -1, 1, 38.092603))
pad4 = body.newObject("PartDesign::Pad", "Pad003")
pad4.Profile = sketch5
pad4.Length = 50

# Sketch on YZ plane
sketch6 = body.newObject("Sketcher::SketchObject", "Sketch005")
sketch6.AttachmentSupport = (doc.getObject("YZ_Plane"), [""])
sketch6.MapMode = "FlatFace"
sketch6.AttachmentOffset = App.Placement(V(0, 0, 41.092603), App.Rotation())
sketch6.addGeometry(Part.Circle(V(-1, 14, 0), V(0, 0, 1), 6), False)
sketch6.addConstraint(Sketcher.Constraint("Diameter", 0, 12.0))
sketch6.addConstraint(Sketcher.Constraint("DistanceY", -1, 1, 0, 3, 14.5))
sketch6.addConstraint(Sketcher.Constraint("DistanceX", 0, 3, -1, 1, 0.875))
pocket2 = body.newObject("PartDesign::Pocket", "Pocket001")
pocket2.Profile = sketch6
pocket2.Type = "ThroughAll"

# Sketch on XY plane
sketch7 = body.newObject("Sketcher::SketchObject", "Sketch006")
sketch7.AttachmentSupport = (doc.getObject("XY_Plane"), [""])
sketch7.MapMode = "FlatFace"
sketch7.AttachmentOffset = App.Placement(V(0, 0, 52), App.Rotation())
sketch7.addGeometry(Part.LineSegment(V(-83, 50, 0), V(-83, -35, 0)), False)
sketch7.addGeometry(Part.LineSegment(V(-83, -35, 0), V(80, -35, 0)), False)
sketch7.addGeometry(Part.LineSegment(V(80, -35, 0), V(80, 50, 0)), False)
sketch7.addGeometry(Part.LineSegment(V(80, 50, 0), V(-83, 50, 0)), False)
sketch7.addConstraint(Sketcher.Constraint("Coincident", 0, 2, 1, 1))
sketch7.addConstraint(Sketcher.Constraint("Coincident", 1, 2, 2, 1))
sketch7.addConstraint(Sketcher.Constraint("Coincident", 2, 2, 3, 1))
sketch7.addConstraint(Sketcher.Constraint("Coincident", 3, 2, 0, 1))
sketch7.addConstraint(Sketcher.Constraint("Vertical", 0))
sketch7.addConstraint(Sketcher.Constraint("Horizontal", 1))
sketch7.addConstraint(Sketcher.Constraint("Vertical", 2))
sketch7.addConstraint(Sketcher.Constraint("Horizontal", 3))
sketch7.addConstraint(Sketcher.Constraint("DistanceX", 1, 1, 1, 2, 162.700192))
sketch7.addConstraint(Sketcher.Constraint("DistanceY", -1, 1, 2, 2, 50.384598))
sketch7.addConstraint(Sketcher.Constraint("DistanceY", 0, 2, 0, 1, 85.823895))
sketch7.addConstraint(Sketcher.Constraint("DistanceX", 0, 2, -1, 1, 83.176136))
pocket3 = body.newObject("PartDesign::Pocket", "Pocket002")
pocket3.Profile = sketch7
pocket3.Length = 10

# Sketch on YZ plane
sketch8 = body.newObject("Sketcher::SketchObject", "Sketch007")
sketch8.AttachmentSupport = (doc.getObject("YZ_Plane"), [""])
sketch8.MapMode = "FlatFace"
sketch8.AttachmentOffset = App.Placement(V(0, 0, 41.092603), App.Rotation())
sketch8.addGeometry(Part.LineSegment(V(8.6, 37, 0), V(8.6, 97.9, 0)), False)
sketch8.addGeometry(Part.ArcOfCircle(Part.Circle(V(-0.9, 97.9, 0), V(0, 0, 1), 9.4), math.radians(0), math.radians(180)), False)
sketch8.addGeometry(Part.LineSegment(V(-10.3, 97.9, 0), V(-10.3, 37, 0)), False)
sketch8.addGeometry(Part.ArcOfCircle(Part.Circle(V(-0.9, 37, 0), V(0, 0, 1), 9.4), math.radians(180), math.radians(360)), False)
sketch8.addGeometry(Part.Circle(V(-0.9, 37, 0), V(0, 0, 1), 5), False)
sketch8.addGeometry(Part.Circle(V(-0.9, 52.2, 0), V(0, 0, 1), 5), False)
sketch8.addGeometry(Part.Circle(V(-0.9, 67.5, 0), V(0, 0, 1), 5), False)
sketch8.addGeometry(Part.Circle(V(-0.9, 82.7, 0), V(0, 0, 1), 5), False)
sketch8.addGeometry(Part.Circle(V(-0.9, 97.9, 0), V(0, 0, 1), 5), False)
sketch8.addConstraint(Sketcher.Constraint("Tangent", 0, 2, 1, 1))
sketch8.addConstraint(Sketcher.Constraint("Tangent", 1, 2, 2, 1))
sketch8.addConstraint(Sketcher.Constraint("Tangent", 2, 2, 3, 1))
sketch8.addConstraint(Sketcher.Constraint("Tangent", 3, 2, 0, 1))
sketch8.addConstraint(Sketcher.Constraint("Vertical", 0))
sketch8.addConstraint(Sketcher.Constraint("Vertical", 2))
sketch8.addConstraint(Sketcher.Constraint("Coincident", 4, 3, 3, 3))
sketch8.addConstraint(Sketcher.Constraint("Coincident", 8, 3, 1, 3))
sketch8.addConstraint(Sketcher.Constraint("Equal", 4, 5))
sketch8.addConstraint(Sketcher.Constraint("Equal", 5, 6))
sketch8.addConstraint(Sketcher.Constraint("Equal", 6, 7))
sketch8.addConstraint(Sketcher.Constraint("Equal", 7, 8))
sketch8.addConstraint(Sketcher.Constraint("Vertical", 4, 3, 5, 3))
sketch8.addConstraint(Sketcher.Constraint("Vertical", 5, 3, 6, 3))
sketch8.addConstraint(Sketcher.Constraint("Vertical", 6, 3, 7, 3))
sketch8.addConstraint(Sketcher.Constraint("Diameter", 4, 9.9))
sketch8.addConstraint(Sketcher.Constraint("Radius", 1, 9.45))
sketch8.addConstraint(Sketcher.Constraint("DistanceY", -1, 1, 3, 3, 37.0))
sketch8.addConstraint(Sketcher.Constraint("DistanceX", 1, 3, -1, 1, 0.875))
sketch8.addConstraint(Sketcher.Constraint("DistanceY", 0, 1, 0, 2, 60.948165))
sketch8.addConstraint(Sketcher.Constraint("DistanceY", -1, 1, 5, 3, 52.237041))
sketch8.addConstraint(Sketcher.Constraint("DistanceY", 5, 3, 6, 3, 15.237041))
sketch8.addConstraint(Sketcher.Constraint("DistanceY", 7, 3, 1, 3, 15.237041))
pad5 = body.newObject("PartDesign::Pad", "Pad004")
pad5.Profile = sketch8
pad5.Length = 14
pad5.Reversed = True

# Sketch on YZ plane
sketch9 = body.newObject("Sketcher::SketchObject", "Sketch008")
sketch9.AttachmentSupport = (doc.getObject("YZ_Plane"), [""])
sketch9.MapMode = "FlatFace"
sketch9.AttachmentOffset = App.Placement(V(0, 0, -27.092603), App.Rotation())
sketch9.addGeometry(Part.LineSegment(V(8.6, 97.9, 0), V(8.6, 37, 0)), False)
sketch9.addGeometry(Part.ArcOfCircle(Part.Circle(V(-0.9, 37, 0), V(0, 0, 1), 9.4), math.radians(180), math.radians(360)), False)
sketch9.addGeometry(Part.LineSegment(V(-10.3, 37, 0), V(-10.3, 97.9, 0)), False)
sketch9.addGeometry(Part.ArcOfCircle(Part.Circle(V(-0.9, 97.9, 0), V(0, 0, 1), 9.4), math.radians(0), math.radians(180)), False)
sketch9.addGeometry(Part.Circle(V(-0.9, 52.2, 0), V(0, 0, 1), 5), False)
sketch9.addGeometry(Part.Circle(V(-0.9, 67.5, 0), V(0, 0, 1), 5), False)
sketch9.addGeometry(Part.Circle(V(-0.9, 82.7, 0), V(0, 0, 1), 5), False)
sketch9.addGeometry(Part.Circle(V(-0.9, 97.9, 0), V(0, 0, 1), 5), False)
sketch9.addConstraint(Sketcher.Constraint("Tangent", 0, 2, 1, 2))
sketch9.addConstraint(Sketcher.Constraint("Tangent", 1, 1, 2, 1))
sketch9.addConstraint(Sketcher.Constraint("Tangent", 2, 2, 3, 2))
sketch9.addConstraint(Sketcher.Constraint("Tangent", 3, 1, 0, 1))
sketch9.addConstraint(Sketcher.Constraint("Vertical", 0))
sketch9.addConstraint(Sketcher.Constraint("Vertical", 2))
sketch9.addConstraint(Sketcher.Constraint("Coincident", 7, 3, 3, 3))
sketch9.addConstraint(Sketcher.Constraint("Equal", 4, 5))
sketch9.addConstraint(Sketcher.Constraint("Equal", 5, 6))
sketch9.addConstraint(Sketcher.Constraint("Equal", 6, 7))
sketch9.addConstraint(Sketcher.Constraint("Vertical", 3, 3, 4, 3))
sketch9.addConstraint(Sketcher.Constraint("Vertical", 4, 3, 5, 3))
sketch9.addConstraint(Sketcher.Constraint("Vertical", 5, 3, 6, 3))
sketch9.addConstraint(Sketcher.Constraint("Diameter", 4, 9.9))
sketch9.addConstraint(Sketcher.Constraint("Radius", 1, 9.45))
sketch9.addConstraint(Sketcher.Constraint("DistanceY", -1, 1, 1, 3, 37.0))
sketch9.addConstraint(Sketcher.Constraint("DistanceX", 1, 3, -1, 1, 0.875))
sketch9.addConstraint(Sketcher.Constraint("DistanceY", 0, 2, 0, 1, 60.948165))
sketch9.addConstraint(Sketcher.Constraint("DistanceY", -1, 1, 4, 3, 52.237041))
sketch9.addConstraint(Sketcher.Constraint("DistanceY", 4, 3, 5, 3, 15.237041))
sketch9.addConstraint(Sketcher.Constraint("DistanceY", 6, 3, 3, 3, 15.237041))
pad6 = body.newObject("PartDesign::Pad", "Pad005")
pad6.Profile = sketch9
pad6.Length = 14
pad6.Reversed = True

# Sketch on YZ plane
sketch10 = body.newObject("Sketcher::SketchObject", "Sketch009")
sketch10.AttachmentSupport = (doc.getObject("YZ_Plane"), [""])
sketch10.MapMode = "FlatFace"
sketch10.AttachmentOffset = App.Placement(V(0, 0, 27.092603), App.Rotation())
sketch10.addGeometry(Part.Circle(V(-0.9, 37, 0), V(0, 0, 1), 5), False)
sketch10.addConstraint(Sketcher.Constraint("Diameter", 0, 9.9))
sketch10.addConstraint(Sketcher.Constraint("DistanceY", -1, 1, 0, 3, 37.0))
sketch10.addConstraint(Sketcher.Constraint("DistanceX", 0, 3, -1, 1, 0.875))
pocket4 = body.newObject("PartDesign::Pocket", "Pocket003")
pocket4.Profile = sketch10
pocket4.Type = "ThroughAll"
pocket4.Midplane = True

doc.recompute()
